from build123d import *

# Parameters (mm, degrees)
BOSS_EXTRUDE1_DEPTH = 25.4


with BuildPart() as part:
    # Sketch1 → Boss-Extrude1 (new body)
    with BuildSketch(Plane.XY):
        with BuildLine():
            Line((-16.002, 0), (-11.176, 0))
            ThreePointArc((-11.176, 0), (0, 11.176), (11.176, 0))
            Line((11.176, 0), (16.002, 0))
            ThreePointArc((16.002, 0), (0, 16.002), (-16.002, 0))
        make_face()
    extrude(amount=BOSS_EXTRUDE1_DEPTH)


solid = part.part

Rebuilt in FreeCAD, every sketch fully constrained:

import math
import FreeCAD as App
import Part
import Sketcher
Q = App.Units.Quantity

doc = App.newDocument("Part")
body = doc.addObject("PartDesign::Body", "Body")

# Sketch on XY plane
sketch1 = doc.addObject("Sketcher::SketchObject", "Sketch")
body.addObject(sketch1)
sketch1.AttachmentSupport = (doc.XY_Plane, [""])
sketch1.MapMode = "FlatFace"
sketch1.addGeometry([
    Part.LineSegment(App.Vector(-16.002, 0, 0), App.Vector(-11.176, 0, 0)),
    Part.ArcOfCircle(Part.Circle(App.Vector(0, 0, 0), App.Vector(0, 0, 1), 11.176), math.radians(0), math.radians(180)),
    Part.LineSegment(App.Vector(11.176, 0, 0), App.Vector(16.002, 0, 0)),
    Part.ArcOfCircle(Part.Circle(App.Vector(0, 0, 0), App.Vector(0, 0, 1), 16.002), math.radians(0), math.radians(180)),
], False)
sketch1.addConstraint([
    Sketcher.Constraint("Coincident", 0, 2, 1, 2),
    Sketcher.Constraint("Coincident", 1, 1, 2, 1),
    Sketcher.Constraint("Coincident", 2, 2, 3, 1),
    Sketcher.Constraint("Coincident", 3, 2, 0, 1),
    Sketcher.Constraint("Horizontal", 0),
    Sketcher.Constraint("Horizontal", 2),
    Sketcher.Constraint("Coincident", 1, 3, -1, 1),
    Sketcher.Constraint("Coincident", 3, 3, -1, 1),
    Sketcher.Constraint("PointOnObject", 0, 2, -1),
    Sketcher.Constraint("PointOnObject", 1, 1, -1),
    Sketcher.Constraint("Radius", 1, Q("0.44 in")),
    Sketcher.Constraint("Radius", 3, Q("0.63 in")),
])
pad1 = doc.addObject("PartDesign::Pad", "Pad")
body.addObject(pad1)
pad1.Profile = sketch1
pad1.Length = Q("1 in")

doc.recompute()
